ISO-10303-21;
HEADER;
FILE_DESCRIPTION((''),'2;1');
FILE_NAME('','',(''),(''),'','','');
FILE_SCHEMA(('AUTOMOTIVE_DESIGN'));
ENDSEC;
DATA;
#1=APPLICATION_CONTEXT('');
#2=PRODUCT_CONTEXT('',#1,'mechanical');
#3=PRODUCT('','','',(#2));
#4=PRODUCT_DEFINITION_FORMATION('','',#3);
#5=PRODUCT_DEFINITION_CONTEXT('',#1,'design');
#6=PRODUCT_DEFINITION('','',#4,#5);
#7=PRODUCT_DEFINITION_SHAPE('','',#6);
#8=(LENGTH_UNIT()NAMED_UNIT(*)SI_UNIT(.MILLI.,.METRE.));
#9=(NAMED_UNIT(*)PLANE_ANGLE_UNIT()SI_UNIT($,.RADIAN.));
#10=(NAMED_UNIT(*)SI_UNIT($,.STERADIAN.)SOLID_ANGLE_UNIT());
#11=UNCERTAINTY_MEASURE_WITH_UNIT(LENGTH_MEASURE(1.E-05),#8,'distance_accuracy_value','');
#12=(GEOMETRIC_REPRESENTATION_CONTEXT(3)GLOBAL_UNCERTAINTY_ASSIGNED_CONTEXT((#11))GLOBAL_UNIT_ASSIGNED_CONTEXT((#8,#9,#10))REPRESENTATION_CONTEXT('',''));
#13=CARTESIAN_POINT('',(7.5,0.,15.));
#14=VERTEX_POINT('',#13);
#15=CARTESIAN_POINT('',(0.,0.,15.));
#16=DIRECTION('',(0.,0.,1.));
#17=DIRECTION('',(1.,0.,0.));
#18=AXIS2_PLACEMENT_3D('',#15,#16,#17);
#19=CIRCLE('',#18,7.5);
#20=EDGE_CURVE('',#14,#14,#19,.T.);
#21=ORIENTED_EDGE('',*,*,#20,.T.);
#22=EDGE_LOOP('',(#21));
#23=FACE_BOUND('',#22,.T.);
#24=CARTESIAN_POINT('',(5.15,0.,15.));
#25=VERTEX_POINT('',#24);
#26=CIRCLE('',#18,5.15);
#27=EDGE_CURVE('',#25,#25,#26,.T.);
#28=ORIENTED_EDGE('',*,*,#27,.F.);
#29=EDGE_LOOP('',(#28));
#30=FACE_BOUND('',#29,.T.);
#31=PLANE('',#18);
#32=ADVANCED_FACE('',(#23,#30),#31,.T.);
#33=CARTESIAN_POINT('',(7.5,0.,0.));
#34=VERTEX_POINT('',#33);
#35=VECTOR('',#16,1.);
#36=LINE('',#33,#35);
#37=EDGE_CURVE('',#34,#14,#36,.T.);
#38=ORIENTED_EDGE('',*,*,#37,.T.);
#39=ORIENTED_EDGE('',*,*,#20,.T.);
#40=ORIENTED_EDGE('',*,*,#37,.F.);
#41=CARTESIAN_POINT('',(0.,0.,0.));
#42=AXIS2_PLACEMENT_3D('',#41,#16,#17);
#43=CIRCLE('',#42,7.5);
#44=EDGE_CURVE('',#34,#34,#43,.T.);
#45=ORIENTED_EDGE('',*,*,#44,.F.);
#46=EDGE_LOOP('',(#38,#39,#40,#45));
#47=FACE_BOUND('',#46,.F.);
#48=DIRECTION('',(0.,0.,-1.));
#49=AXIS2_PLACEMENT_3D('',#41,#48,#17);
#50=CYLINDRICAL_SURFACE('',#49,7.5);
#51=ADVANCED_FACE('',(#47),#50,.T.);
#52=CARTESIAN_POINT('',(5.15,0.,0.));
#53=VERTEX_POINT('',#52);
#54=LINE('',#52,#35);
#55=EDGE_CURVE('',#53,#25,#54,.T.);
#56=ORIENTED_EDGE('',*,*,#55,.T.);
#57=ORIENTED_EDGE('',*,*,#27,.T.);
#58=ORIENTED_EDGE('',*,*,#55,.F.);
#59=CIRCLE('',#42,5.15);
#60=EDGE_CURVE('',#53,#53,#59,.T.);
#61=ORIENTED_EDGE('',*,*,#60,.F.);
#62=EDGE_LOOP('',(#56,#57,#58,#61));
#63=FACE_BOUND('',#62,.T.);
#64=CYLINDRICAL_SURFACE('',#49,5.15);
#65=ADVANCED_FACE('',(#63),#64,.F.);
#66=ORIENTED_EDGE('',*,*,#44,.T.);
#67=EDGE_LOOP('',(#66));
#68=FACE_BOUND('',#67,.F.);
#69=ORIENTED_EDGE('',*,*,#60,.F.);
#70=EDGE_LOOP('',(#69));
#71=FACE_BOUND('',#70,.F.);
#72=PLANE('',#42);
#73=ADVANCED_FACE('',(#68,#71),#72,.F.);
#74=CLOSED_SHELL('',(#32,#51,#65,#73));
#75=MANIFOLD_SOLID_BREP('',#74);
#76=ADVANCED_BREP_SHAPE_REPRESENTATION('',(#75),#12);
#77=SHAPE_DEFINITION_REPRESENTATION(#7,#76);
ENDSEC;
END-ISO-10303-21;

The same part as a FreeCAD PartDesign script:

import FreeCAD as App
import Part
import Sketcher

doc = App.newDocument("Part")
body = doc.addObject("PartDesign::Body", "Body")

sketch1 = doc.addObject("Sketcher::SketchObject", "Sketch")
body.addObject(sketch1)
sketch1.AttachmentSupport = (doc.XY_Plane, [""])
sketch1.MapMode = "FlatFace"
sketch1.addGeometry([
    Part.Circle(App.Vector(0, 0, 0), App.Vector(0, 0, 1), 7.5),
    Part.Circle(App.Vector(0, 0, 0), App.Vector(0, 0, 1), 5.15),
], False)
sketch1.addConstraint([
    Sketcher.Constraint("Coincident", 0, 3, -1, 1),
    Sketcher.Constraint("Coincident", 1, 3, -1, 1),
    Sketcher.Constraint("Diameter", 0, 15.0),
    Sketcher.Constraint("Diameter", 1, 10.3),
])
pad1 = doc.addObject("PartDesign::Pad", "Pad")
body.addObject(pad1)
pad1.Profile = sketch1
pad1.Length = 15

doc.recompute()
